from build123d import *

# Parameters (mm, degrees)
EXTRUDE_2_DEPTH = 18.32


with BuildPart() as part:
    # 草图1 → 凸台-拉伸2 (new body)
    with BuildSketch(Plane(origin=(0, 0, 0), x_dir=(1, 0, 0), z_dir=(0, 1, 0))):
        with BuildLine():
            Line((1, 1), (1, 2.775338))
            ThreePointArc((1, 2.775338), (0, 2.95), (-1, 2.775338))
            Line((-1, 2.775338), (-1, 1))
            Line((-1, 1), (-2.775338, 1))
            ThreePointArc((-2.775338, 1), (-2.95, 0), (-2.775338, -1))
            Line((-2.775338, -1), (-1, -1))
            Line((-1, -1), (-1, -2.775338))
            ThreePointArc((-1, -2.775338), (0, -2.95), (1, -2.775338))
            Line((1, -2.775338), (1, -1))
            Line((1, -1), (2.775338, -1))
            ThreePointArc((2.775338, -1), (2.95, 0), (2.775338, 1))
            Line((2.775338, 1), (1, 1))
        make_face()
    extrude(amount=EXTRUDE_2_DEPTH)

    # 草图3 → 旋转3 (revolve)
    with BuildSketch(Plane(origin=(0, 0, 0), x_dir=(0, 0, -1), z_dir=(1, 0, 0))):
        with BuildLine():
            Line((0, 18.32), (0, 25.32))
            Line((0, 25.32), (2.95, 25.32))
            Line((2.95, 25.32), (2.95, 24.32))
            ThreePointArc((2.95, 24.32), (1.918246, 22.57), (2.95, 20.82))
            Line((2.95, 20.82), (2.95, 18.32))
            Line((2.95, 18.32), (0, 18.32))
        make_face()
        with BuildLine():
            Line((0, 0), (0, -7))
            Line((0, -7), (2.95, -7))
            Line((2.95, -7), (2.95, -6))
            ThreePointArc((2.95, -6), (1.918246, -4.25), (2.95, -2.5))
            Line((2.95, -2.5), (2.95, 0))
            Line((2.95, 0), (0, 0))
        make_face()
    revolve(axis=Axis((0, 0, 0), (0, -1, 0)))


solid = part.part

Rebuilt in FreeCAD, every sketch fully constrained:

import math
import FreeCAD as App
import Part
import Sketcher
from FreeCAD import Vector
Q = App.Units.Quantity

doc = App.newDocument("Part")
body = doc.addObject("PartDesign::Body", "Body")

# Sketch on XZ plane
sketch1 = doc.addObject("Sketcher::SketchObject", "Sketch")
body.addObject(sketch1)
sketch1.AttachmentSupport = (doc.XZ_Plane, [""])
sketch1.MapMode = "FlatFace"
sketch1.addGeometry([
    Part.LineSegment(Vector(1, -1, 0), Vector(1, -2.8, 0)),  # 0
    Part.ArcOfCircle(Part.Circle(Vector(0, 0, 0), Vector(0, 0, 1), 3), math.radians(-110), math.radians(-70)),  # 1
    Part.LineSegment(Vector(-1, -2.8, 0), Vector(-1, -1, 0)),  # 2
    Part.LineSegment(Vector(-1, -1, 0), Vector(-2.8, -1, 0)),  # 3
    Part.ArcOfCircle(Part.Circle(Vector(0, 0, 0), Vector(0, 0, 1), 3), math.radians(160), math.radians(200)),  # 4
    Part.LineSegment(Vector(-2.8, 1, 0), Vector(-1, 1, 0)),  # 5
    Part.LineSegment(Vector(-1, 1, 0), Vector(-1, 2.8, 0)),  # 6
    Part.ArcOfCircle(Part.Circle(Vector(0, 0, 0), Vector(0, 0, 1), 3), math.radians(70), math.radians(110)),  # 7
    Part.LineSegment(Vector(1, 2.8, 0), Vector(1, 1, 0)),  # 8
    Part.LineSegment(Vector(1, 1, 0), Vector(2.8, 1, 0)),  # 9
    Part.ArcOfCircle(Part.Circle(Vector(0, 0, 0), Vector(0, 0, 1), 3), math.radians(-20), math.radians(20)),  # 10
    Part.LineSegment(Vector(2.8, -1, 0), Vector(1, -1, 0)),  # 11
], False)
sketch1.addConstraint([
    Sketcher.Constraint("Coincident", 0, 2, 1, 2),
    Sketcher.Constraint("Coincident", 1, 1, 2, 1),
    Sketcher.Constraint("Coincident", 2, 2, 3, 1),
    Sketcher.Constraint("Coincident", 3, 2, 4, 2),
    Sketcher.Constraint("Coincident", 4, 1, 5, 1),
    Sketcher.Constraint("Coincident", 5, 2, 6, 1),
    Sketcher.Constraint("Coincident", 6, 2, 7, 2),
    Sketcher.Constraint("Coincident", 7, 1, 8, 1),
    Sketcher.Constraint("Coincident", 8, 2, 9, 1),
    Sketcher.Constraint("Coincident", 9, 2, 10, 2),
    Sketcher.Constraint("Coincident", 10, 1, 11, 1),
    Sketcher.Constraint("Coincident", 11, 2, 0, 1),
    Sketcher.Constraint("Vertical", 0),
    Sketcher.Constraint("Vertical", 2),
    Sketcher.Constraint("Horizontal", 3),
    Sketcher.Constraint("Horizontal", 5),
    Sketcher.Constraint("Vertical", 6),
    Sketcher.Constraint("Vertical", 8),
    Sketcher.Constraint("Horizontal", 9),
    Sketcher.Constraint("Horizontal", 11),
    Sketcher.Constraint("Coincident", 1, 3, -1, 1),
    Sketcher.Constraint("Coincident", 4, 3, -1, 1),
    Sketcher.Constraint("Coincident", 7, 3, -1, 1),
    Sketcher.Constraint("Coincident", 10, 3, -1, 1),
    Sketcher.Constraint("Equal", 1, 4),
    Sketcher.Constraint("Equal", 4, 7),
    Sketcher.Constraint("Equal", 7, 10),
    Sketcher.Constraint("Symmetric", 2, 2, 8, 2, -1, 1),
    Sketcher.Constraint("Symmetric", 5, 2, 11, 2, -1, 1),
    Sketcher.Constraint("Symmetric", 5, 2, 8, 2, -2),
    Sketcher.Constraint("Equal", 11, 0),
    Sketcher.Constraint("DistanceX", -1, 1, 0, 2, Q("1 mm")),
    Sketcher.Constraint("Radius", 1, Q("2.950003 mm")),
])
pad1 = doc.addObject("PartDesign::Pad", "Pad")
body.addObject(pad1)
pad1.Profile = sketch1
pad1.Length = 18.32
pad1.Reversed = True

# Sketch on YZ plane
sketch2 = doc.addObject("Sketcher::SketchObject", "Sketch001")
body.addObject(sketch2)
sketch2.AttachmentSupport = (doc.YZ_Plane, [""])
sketch2.MapMode = "FlatFace"
sketch2.addGeometry([
    Part.LineSegment(Vector(25.3, 0, 0), Vector(18.3, 0, 0)),  # 0
    Part.LineSegment(Vector(18.3, 0, 0), Vector(18.3, -3, 0)),  # 1
    Part.LineSegment(Vector(18.3, -3, 0), Vector(20.8, -3, 0)),  # 2
    Part.ArcOfCircle(Part.Circle(Vector(22.6, -3.9, 0), Vector(0, 0, 1), 2), math.radians(29), math.radians(151)),  # 3
    Part.LineSegment(Vector(24.3, -3, 0), Vector(25.3, -3, 0)),  # 4
    Part.LineSegment(Vector(25.3, -3, 0), Vector(25.3, 0, 0)),  # 5
    Part.LineSegment(Vector(0, 0, 0), Vector(-7, 0, 0)),  # 6
    Part.LineSegment(Vector(-7, 0, 0), Vector(-7, -3, 0)),  # 7
    Part.LineSegment(Vector(-7, -3, 0), Vector(-6, -3, 0)),  # 8
    Part.ArcOfCircle(Part.Circle(Vector(-4.2, -3.9, 0), Vector(0, 0, 1), 2), math.radians(29), math.radians(151)),  # 9
    Part.LineSegment(Vector(-2.5, -3, 0), Vector(0, -3, 0)),  # 10
    Part.LineSegment(Vector(0, -3, 0), Vector(0, 0, 0)),  # 11
], False)
sketch2.addConstraint([
    Sketcher.Constraint("Coincident", 0, 2, 1, 1),
    Sketcher.Constraint("Coincident", 1, 2, 2, 1),
    Sketcher.Constraint("Coincident", 2, 2, 3, 2),
    Sketcher.Constraint("Coincident", 3, 1, 4, 1),
    Sketcher.Constraint("Coincident", 4, 2, 5, 1),
    Sketcher.Constraint("Coincident", 5, 2, 0, 1),
    Sketcher.Constraint("Coincident", 6, 2, 7, 1),
    Sketcher.Constraint("Coincident", 7, 2, 8, 1),
    Sketcher.Constraint("Coincident", 8, 2, 9, 2),
    Sketcher.Constraint("Coincident", 9, 1, 10, 1),
    Sketcher.Constraint("Coincident", 10, 2, 11, 1),
    Sketcher.Constraint("Coincident", 11, 2, 6, 1),
    Sketcher.Constraint("Horizontal", 0),
    Sketcher.Constraint("Vertical", 1),
    Sketcher.Constraint("Horizontal", 2),
    Sketcher.Constraint("Horizontal", 4),
    Sketcher.Constraint("Vertical", 5),
    Sketcher.Constraint("Horizontal", 6),
    Sketcher.Constraint("Vertical", 7),
    Sketcher.Constraint("Horizontal", 8),
    Sketcher.Constraint("Horizontal", 10),
    Sketcher.Constraint("Vertical", 11),
    Sketcher.Constraint("Coincident", 11, 2, -1, 1),
    Sketcher.Constraint("Equal", 3, 9),
    Sketcher.Constraint("PointOnObject", 0, 2, -1),
    Sketcher.Constraint("Horizontal", 3, 3, 9, 3),
    Sketcher.Constraint("Horizontal", 2, 2, 3, 1),
    Sketcher.Constraint("Horizontal", 4, 2, 7, 2),
    Sketcher.Constraint("Horizontal", 8, 2, 9, 1),
    Sketcher.Constraint("Equal", 0, 6),
    Sketcher.Constraint("Equal", 4, 8),
    Sketcher.Constraint("Radius", 3, Q("2 mm")),
    Sketcher.Constraint("DistanceX", 0, 2, 0, 1, Q("7 mm")),
    Sketcher.Constraint("DistanceX", 4, 1, 4, 2, Q("1 mm")),
    Sketcher.Constraint("DistanceX", 2, 1, 2, 2, Q("2.5 mm")),
    Sketcher.Constraint("DistanceY", 1, 2, 1, 1, Q("2.95 mm")),
    Sketcher.Constraint("DistanceX", -1, 1, 3, 3, Q("22.57 mm")),
])
revolution = doc.addObject("PartDesign::Revolution", "Revolution")
body.addObject(revolution)
revolution.Profile = sketch2
revolution.ReferenceAxis = (sketch2, ["H_Axis"])
revolution.Angle = 360

doc.recompute()
